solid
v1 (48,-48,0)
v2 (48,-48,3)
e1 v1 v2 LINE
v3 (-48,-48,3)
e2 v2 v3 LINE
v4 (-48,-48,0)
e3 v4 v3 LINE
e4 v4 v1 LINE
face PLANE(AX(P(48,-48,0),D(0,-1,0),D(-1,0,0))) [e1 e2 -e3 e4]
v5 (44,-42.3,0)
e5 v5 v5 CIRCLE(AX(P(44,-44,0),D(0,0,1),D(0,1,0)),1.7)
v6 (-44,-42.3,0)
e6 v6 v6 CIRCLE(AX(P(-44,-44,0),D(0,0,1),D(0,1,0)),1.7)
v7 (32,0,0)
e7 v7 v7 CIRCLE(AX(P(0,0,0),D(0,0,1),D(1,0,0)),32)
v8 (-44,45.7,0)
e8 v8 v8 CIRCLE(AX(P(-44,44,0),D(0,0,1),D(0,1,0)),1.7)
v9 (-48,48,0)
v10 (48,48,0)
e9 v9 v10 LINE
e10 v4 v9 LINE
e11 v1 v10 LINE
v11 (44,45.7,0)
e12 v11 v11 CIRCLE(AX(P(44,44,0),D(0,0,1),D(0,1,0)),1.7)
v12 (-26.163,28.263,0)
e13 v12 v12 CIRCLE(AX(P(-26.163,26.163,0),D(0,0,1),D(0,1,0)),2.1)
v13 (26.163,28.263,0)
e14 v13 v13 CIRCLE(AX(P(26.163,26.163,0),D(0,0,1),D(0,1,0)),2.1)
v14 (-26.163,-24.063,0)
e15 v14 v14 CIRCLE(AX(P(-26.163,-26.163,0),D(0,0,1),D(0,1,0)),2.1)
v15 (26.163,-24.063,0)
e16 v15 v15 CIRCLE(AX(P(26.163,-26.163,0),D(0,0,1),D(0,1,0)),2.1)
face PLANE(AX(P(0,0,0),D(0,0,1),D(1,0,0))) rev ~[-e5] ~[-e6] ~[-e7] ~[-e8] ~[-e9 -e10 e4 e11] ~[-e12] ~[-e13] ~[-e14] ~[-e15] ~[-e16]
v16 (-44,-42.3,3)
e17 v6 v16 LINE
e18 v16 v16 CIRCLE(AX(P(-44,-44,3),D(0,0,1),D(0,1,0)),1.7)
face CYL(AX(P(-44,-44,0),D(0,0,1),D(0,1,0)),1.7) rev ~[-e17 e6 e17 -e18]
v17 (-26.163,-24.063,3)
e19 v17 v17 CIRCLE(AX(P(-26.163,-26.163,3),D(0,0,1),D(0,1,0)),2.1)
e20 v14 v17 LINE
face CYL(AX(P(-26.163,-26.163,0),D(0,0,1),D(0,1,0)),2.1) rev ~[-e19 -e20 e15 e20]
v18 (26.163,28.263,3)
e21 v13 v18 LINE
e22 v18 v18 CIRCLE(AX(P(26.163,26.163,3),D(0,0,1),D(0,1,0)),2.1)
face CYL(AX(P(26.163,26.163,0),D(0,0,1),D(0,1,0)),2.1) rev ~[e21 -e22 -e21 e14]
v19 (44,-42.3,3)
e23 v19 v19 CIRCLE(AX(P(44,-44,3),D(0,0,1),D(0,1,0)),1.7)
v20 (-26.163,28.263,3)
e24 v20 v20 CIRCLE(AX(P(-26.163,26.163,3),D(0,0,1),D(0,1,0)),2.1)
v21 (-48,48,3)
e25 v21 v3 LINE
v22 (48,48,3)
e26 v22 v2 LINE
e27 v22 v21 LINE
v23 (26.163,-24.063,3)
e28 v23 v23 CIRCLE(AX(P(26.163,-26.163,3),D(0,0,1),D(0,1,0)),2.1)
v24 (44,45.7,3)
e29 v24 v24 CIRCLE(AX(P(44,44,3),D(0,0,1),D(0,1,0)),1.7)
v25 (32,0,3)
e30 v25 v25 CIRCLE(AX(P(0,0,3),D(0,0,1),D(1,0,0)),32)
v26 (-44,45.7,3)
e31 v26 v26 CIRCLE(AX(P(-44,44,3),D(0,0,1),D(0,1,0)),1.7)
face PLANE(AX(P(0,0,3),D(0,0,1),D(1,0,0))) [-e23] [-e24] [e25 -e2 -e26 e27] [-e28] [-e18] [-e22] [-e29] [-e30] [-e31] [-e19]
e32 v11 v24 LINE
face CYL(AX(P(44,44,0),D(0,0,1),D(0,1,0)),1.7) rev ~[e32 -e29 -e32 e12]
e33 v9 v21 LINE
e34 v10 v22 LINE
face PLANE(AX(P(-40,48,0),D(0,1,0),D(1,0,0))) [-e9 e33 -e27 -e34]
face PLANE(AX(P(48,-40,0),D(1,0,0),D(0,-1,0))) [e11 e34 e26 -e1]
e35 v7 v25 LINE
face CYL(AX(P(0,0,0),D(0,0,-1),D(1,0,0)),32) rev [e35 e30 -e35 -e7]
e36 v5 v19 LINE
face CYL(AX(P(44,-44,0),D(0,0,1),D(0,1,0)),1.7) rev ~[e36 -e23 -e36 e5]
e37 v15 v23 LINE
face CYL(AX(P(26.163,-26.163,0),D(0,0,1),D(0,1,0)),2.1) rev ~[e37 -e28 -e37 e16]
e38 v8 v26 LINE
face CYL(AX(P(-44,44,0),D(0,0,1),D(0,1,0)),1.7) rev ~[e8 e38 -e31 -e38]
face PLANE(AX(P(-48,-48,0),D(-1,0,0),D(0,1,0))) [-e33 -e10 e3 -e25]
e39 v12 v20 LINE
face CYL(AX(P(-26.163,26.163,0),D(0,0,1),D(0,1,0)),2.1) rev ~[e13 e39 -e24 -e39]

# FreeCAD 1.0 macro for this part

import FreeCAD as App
import Part
import Sketcher
from FreeCAD import Vector

doc = App.newDocument("Part")
params = doc.addObject("Spreadsheet::Sheet", "Params")
for row, (alias, value) in enumerate([
    ("sketch1_diameter", "64 mm"),
    ("sketch1_width", "96 mm"),
    ("pad1_length", "3 mm"),
    ("sketch2_diameter", "3.4 mm"),
    ("hole_diameter", "3.4 mm"),
    ("sketch3_diameter", "4.2 mm"),
    ("hole2_diameter", "4.2 mm"),
], start=1):
    params.set(f"A{row}", alias)
    params.set(f"B{row}", "=" + value)
    params.setAlias(f"B{row}", alias)

body = doc.addObject("PartDesign::Body", "Body")

# Sketch on XY plane
sketch1 = body.newObject("Sketcher::SketchObject", "Sketch")
sketch1.AttachmentSupport = (doc.getObject("XY_Plane"), [""])
sketch1.MapMode = "FlatFace"
sketch1.addGeometry(Part.LineSegment(Vector(48, -48, 0), Vector(48, 48, 0)), False)
sketch1.addGeometry(Part.LineSegment(Vector(48, 48, 0), Vector(-48, 48, 0)), False)
sketch1.addGeometry(Part.LineSegment(Vector(-48, 48, 0), Vector(-48, -48, 0)), False)
sketch1.addGeometry(Part.LineSegment(Vector(-48, -48, 0), Vector(48, -48, 0)), False)
sketch1.addGeometry(Part.Circle(Vector(0, 0, 0), Vector(0, 0, 1), 32), False)
sketch1.addConstraint(Sketcher.Constraint("Coincident", 0, 2, 1, 1))
sketch1.addConstraint(Sketcher.Constraint("Coincident", 1, 2, 2, 1))
sketch1.addConstraint(Sketcher.Constraint("Coincident", 2, 2, 3, 1))
sketch1.addConstraint(Sketcher.Constraint("Coincident", 3, 2, 0, 1))
sketch1.addConstraint(Sketcher.Constraint("Vertical", 0))
sketch1.addConstraint(Sketcher.Constraint("Horizontal", 1))
sketch1.addConstraint(Sketcher.Constraint("Vertical", 2))
sketch1.addConstraint(Sketcher.Constraint("Horizontal", 3))
sketch1.addConstraint(Sketcher.Constraint("Coincident", 4, 3, -1, 1))
sketch1.addConstraint(Sketcher.Constraint("Symmetric", 0, 2, 2, 2, -1, 1))
sketch1.addConstraint(Sketcher.Constraint("Equal", 3, 0))
sketch1.addConstraint(Sketcher.Constraint("Diameter", 4, 64.0))
sketch1.addConstraint(Sketcher.Constraint("DistanceX", 1, 2, 1, 1, 96.0))
sketch1.setExpression("Constraints[11]", "Params.sketch1_diameter")
sketch1.setExpression("Constraints[12]", "Params.sketch1_width")
pad1 = body.newObject("PartDesign::Pad", "Pad")
pad1.Profile = sketch1
pad1.setExpression("Length", "Params.pad1_length")

# Sketch on XY plane
sketch2 = body.newObject("Sketcher::SketchObject", "Sketch001")
sketch2.AttachmentSupport = (doc.getObject("XY_Plane"), [""])
sketch2.MapMode = "FlatFace"
sketch2.addGeometry(Part.Circle(Vector(-44, 44, 0), Vector(0, 0, 1), 1.7), False)
sketch2.addGeometry(Part.Circle(Vector(44, 44, 0), Vector(0, 0, 1), 1.7), False)
sketch2.addGeometry(Part.Circle(Vector(-44, -44, 0), Vector(0, 0, 1), 1.7), False)
sketch2.addGeometry(Part.Circle(Vector(44, -44, 0), Vector(0, 0, 1), 1.7), False)
sketch2.addConstraint(Sketcher.Constraint("Equal", 0, 1))
sketch2.addConstraint(Sketcher.Constraint("Equal", 1, 2))
sketch2.addConstraint(Sketcher.Constraint("Equal", 2, 3))
sketch2.addConstraint(Sketcher.Constraint("Symmetric", 1, 3, 2, 3, -1, 1))
sketch2.addConstraint(Sketcher.Constraint("Symmetric", 0, 3, 3, 3, -1, 1))
sketch2.addConstraint(Sketcher.Constraint("Symmetric", 0, 3, 1, 3, -2))
sketch2.addConstraint(Sketcher.Constraint("Diameter", 0, 3.4))
sketch2.addConstraint(Sketcher.Constraint("DistanceX", 0, 3, -1, 1, 44.0))
sketch2.addConstraint(Sketcher.Constraint("DistanceY", -1, 1, 0, 3, 44.0))
sketch2.setExpression("Constraints[6]", "Params.sketch2_diameter")
doc.recompute()
hole = body.newObject("PartDesign::Hole", "Hole")
hole.Profile = sketch2
hole.ThreadType = "None"
hole.setExpression("Diameter", "Params.hole_diameter")
hole.DepthType = "ThroughAll"
hole.Reversed = True

# Sketch on XY plane
sketch3 = body.newObject("Sketcher::SketchObject", "Sketch002")
sketch3.AttachmentSupport = (doc.getObject("XY_Plane"), [""])
sketch3.MapMode = "FlatFace"
sketch3.addGeometry(Part.Circle(Vector(-26.2, 26.2, 0), Vector(0, 0, 1), 2.1), False)
sketch3.addGeometry(Part.Circle(Vector(26.2, 26.2, 0), Vector(0, 0, 1), 2.1), False)
sketch3.addGeometry(Part.Circle(Vector(26.2, -26.2, 0), Vector(0, 0, 1), 2.1), False)
sketch3.addGeometry(Part.Circle(Vector(-26.2, -26.2, 0), Vector(0, 0, 1), 2.1), False)
sketch3.addConstraint(Sketcher.Constraint("Equal", 0, 1))
sketch3.addConstraint(Sketcher.Constraint("Equal", 1, 2))
sketch3.addConstraint(Sketcher.Constraint("Equal", 2, 3))
sketch3.addConstraint(Sketcher.Constraint("Symmetric", 0, 3, 2, 3, -1, 1))
sketch3.addConstraint(Sketcher.Constraint("Symmetric", 1, 3, 3, 3, -1, 1))
sketch3.addConstraint(Sketcher.Constraint("Symmetric", 0, 3, 1, 3, -2))
sketch3.addConstraint(Sketcher.Constraint("Diameter", 0, 4.2))
sketch3.addConstraint(Sketcher.Constraint("DistanceX", 0, 3, -1, 1, 26.163))
sketch3.addConstraint(Sketcher.Constraint("DistanceY", -1, 1, 0, 3, 26.163))
sketch3.setExpression("Constraints[6]", "Params.sketch3_diameter")
doc.recompute()
hole2 = body.newObject("PartDesign::Hole", "Hole001")
hole2.Profile = sketch3
hole2.ThreadType = "None"
hole2.setExpression("Diameter", "Params.hole2_diameter")
hole2.DepthType = "ThroughAll"
hole2.Reversed = True

doc.recompute()
